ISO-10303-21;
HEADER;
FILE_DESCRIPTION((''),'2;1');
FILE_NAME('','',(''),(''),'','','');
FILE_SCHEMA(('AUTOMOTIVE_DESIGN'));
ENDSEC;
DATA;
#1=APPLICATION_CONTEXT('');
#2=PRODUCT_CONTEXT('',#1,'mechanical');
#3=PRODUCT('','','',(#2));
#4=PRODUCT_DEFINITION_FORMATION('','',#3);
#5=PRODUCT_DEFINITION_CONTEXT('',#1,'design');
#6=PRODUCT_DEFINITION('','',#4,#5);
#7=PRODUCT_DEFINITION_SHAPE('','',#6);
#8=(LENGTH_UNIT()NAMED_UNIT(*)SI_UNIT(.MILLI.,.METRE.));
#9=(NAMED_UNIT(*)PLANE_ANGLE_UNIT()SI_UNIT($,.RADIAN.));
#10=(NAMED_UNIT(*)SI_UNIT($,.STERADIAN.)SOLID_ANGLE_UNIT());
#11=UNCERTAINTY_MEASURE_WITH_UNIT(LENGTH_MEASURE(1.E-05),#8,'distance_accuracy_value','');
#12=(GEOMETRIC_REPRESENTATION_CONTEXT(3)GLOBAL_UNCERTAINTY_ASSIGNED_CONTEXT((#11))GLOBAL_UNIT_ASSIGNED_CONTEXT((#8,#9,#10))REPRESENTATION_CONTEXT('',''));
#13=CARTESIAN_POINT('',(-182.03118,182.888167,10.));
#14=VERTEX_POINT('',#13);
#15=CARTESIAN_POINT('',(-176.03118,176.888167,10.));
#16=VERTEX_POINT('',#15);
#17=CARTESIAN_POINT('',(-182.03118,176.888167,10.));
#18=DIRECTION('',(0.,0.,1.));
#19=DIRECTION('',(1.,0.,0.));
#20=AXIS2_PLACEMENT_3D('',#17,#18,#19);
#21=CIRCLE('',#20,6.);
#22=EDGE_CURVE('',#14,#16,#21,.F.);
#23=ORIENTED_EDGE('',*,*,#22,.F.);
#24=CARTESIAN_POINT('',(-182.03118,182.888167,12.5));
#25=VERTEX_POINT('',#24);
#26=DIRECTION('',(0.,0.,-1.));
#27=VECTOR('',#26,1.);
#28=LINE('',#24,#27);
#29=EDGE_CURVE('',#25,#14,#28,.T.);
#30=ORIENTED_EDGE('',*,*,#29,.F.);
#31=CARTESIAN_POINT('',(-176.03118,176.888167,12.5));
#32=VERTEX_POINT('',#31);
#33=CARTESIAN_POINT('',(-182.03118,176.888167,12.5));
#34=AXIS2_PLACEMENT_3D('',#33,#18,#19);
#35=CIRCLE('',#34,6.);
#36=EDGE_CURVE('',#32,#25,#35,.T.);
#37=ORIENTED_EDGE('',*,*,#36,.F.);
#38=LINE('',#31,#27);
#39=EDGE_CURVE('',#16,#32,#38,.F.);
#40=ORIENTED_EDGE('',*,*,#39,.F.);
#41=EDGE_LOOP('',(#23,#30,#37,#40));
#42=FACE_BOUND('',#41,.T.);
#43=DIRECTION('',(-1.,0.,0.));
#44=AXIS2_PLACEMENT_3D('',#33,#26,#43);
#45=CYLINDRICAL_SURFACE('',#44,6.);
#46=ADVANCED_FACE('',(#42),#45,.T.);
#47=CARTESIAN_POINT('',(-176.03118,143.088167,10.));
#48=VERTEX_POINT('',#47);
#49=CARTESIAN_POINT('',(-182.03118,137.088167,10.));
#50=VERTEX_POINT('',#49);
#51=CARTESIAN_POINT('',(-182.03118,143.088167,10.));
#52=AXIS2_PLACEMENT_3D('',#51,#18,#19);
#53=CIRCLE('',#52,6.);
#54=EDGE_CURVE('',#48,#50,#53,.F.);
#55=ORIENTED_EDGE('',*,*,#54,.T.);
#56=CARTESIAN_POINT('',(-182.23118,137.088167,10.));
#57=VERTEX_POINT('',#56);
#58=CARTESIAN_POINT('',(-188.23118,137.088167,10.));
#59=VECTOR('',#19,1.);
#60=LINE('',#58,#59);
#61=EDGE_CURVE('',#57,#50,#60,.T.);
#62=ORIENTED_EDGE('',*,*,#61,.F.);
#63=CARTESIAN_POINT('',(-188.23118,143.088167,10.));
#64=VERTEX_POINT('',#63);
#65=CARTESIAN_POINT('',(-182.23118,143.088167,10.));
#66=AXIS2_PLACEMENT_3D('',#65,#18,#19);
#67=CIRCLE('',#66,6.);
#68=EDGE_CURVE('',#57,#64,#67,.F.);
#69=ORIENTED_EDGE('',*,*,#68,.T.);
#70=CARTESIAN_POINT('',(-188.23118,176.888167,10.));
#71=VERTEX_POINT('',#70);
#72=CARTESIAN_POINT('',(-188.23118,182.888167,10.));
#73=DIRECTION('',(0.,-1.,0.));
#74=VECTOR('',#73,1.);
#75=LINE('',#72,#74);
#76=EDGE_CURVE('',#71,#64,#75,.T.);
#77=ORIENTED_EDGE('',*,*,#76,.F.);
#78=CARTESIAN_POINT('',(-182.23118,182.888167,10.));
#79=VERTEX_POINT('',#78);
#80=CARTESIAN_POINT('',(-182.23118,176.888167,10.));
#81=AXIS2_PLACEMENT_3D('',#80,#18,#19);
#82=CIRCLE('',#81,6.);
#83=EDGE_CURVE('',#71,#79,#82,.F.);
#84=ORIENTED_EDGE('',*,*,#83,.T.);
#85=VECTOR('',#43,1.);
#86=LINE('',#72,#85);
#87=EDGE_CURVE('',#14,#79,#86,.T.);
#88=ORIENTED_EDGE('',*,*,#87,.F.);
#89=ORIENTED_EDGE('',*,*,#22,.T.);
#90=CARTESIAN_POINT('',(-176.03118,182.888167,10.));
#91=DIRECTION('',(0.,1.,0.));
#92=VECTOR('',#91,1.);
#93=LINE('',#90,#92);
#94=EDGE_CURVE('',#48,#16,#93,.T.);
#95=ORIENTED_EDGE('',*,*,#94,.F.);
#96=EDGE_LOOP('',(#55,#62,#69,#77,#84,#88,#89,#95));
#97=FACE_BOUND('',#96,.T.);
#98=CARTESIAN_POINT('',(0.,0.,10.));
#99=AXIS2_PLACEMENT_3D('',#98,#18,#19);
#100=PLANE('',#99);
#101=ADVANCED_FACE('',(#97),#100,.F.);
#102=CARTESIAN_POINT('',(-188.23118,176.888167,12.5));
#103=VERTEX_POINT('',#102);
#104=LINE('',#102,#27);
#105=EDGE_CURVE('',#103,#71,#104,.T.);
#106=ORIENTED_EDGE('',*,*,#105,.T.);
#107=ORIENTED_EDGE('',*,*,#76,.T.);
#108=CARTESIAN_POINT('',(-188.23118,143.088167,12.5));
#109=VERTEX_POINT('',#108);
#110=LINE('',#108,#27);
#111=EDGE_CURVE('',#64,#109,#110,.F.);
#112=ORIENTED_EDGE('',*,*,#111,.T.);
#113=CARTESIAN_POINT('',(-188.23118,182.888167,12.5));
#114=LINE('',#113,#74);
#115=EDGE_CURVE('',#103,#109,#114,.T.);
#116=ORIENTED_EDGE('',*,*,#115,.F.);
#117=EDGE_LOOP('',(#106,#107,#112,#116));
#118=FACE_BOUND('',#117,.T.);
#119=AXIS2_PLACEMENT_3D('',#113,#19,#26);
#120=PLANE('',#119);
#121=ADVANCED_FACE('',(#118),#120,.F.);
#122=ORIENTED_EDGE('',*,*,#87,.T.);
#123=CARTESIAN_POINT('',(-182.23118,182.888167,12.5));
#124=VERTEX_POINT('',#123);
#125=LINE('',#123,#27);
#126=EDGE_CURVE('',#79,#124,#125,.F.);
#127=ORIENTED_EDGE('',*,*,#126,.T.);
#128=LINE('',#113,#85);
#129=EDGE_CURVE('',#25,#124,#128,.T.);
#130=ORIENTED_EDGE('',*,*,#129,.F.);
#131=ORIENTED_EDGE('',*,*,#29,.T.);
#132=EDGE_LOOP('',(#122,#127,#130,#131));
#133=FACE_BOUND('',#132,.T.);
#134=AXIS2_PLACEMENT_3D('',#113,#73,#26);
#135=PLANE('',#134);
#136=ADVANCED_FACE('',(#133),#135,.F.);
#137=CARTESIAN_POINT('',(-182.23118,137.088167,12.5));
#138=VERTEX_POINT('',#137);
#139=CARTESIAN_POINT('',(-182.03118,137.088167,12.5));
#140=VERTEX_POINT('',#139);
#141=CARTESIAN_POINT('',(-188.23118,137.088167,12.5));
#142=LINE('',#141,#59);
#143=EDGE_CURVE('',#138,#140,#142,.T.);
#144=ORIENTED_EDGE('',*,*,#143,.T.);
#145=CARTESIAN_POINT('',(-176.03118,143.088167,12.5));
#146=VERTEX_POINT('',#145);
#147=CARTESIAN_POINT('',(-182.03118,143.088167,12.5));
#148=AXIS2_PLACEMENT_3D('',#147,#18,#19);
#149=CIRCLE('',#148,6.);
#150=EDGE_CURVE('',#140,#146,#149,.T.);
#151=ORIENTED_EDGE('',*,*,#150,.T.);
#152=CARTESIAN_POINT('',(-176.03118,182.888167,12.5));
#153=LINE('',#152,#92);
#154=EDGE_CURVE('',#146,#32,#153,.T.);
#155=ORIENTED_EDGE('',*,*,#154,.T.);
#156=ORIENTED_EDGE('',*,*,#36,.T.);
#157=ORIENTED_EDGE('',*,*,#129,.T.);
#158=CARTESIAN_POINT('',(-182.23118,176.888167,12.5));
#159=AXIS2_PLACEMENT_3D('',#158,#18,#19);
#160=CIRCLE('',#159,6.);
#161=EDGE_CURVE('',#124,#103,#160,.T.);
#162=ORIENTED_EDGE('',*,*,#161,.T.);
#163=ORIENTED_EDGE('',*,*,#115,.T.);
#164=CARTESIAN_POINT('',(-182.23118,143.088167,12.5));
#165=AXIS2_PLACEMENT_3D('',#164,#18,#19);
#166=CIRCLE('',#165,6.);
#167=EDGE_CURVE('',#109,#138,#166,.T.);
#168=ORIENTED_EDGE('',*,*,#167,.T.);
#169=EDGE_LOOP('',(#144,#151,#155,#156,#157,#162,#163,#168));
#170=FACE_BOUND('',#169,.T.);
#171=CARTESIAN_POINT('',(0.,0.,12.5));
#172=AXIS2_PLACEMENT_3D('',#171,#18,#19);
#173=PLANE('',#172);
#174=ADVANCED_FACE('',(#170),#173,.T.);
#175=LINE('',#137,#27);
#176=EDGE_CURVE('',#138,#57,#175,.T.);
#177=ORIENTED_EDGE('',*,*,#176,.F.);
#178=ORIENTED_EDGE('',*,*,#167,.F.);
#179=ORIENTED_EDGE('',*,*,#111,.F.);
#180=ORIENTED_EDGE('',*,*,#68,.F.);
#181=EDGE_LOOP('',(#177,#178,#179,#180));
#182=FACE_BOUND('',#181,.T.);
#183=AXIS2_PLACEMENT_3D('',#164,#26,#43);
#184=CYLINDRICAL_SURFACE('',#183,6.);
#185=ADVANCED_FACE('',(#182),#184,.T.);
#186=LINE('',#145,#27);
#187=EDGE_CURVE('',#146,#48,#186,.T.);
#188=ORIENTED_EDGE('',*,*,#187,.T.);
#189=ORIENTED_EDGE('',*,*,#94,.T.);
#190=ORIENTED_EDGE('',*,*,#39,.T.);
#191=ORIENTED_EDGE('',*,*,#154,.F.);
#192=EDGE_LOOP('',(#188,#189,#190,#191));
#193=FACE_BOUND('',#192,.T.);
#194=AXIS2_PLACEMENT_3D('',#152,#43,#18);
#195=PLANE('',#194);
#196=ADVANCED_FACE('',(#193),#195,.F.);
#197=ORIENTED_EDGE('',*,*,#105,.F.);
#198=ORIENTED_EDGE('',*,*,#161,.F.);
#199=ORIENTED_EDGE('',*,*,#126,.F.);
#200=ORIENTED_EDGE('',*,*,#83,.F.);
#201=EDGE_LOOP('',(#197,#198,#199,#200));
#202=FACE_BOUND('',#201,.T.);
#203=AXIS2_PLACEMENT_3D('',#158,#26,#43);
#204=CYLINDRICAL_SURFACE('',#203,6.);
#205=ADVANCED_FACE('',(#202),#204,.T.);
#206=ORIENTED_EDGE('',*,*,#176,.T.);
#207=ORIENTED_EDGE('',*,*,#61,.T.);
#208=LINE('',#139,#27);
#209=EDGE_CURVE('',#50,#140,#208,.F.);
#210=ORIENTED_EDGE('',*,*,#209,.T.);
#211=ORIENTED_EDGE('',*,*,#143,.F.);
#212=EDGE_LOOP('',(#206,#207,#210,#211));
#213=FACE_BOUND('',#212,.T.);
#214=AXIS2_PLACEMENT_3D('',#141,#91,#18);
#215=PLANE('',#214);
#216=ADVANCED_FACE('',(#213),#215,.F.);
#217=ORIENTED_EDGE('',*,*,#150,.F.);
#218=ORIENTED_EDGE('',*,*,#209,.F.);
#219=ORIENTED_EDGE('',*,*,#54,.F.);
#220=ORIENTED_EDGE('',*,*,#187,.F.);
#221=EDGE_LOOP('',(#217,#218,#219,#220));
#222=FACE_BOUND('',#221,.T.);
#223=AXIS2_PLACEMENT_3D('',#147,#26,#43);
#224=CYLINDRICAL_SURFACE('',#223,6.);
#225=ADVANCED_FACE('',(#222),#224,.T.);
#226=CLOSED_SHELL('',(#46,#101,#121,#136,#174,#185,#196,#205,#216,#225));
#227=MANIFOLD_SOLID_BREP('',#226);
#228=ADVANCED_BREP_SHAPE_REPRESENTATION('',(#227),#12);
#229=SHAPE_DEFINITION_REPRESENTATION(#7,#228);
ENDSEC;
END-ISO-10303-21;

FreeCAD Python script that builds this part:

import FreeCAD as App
import Part
import Sketcher


def edges_at(feature, points):
    """Names of the edges that pass closest to the given points."""
    edges = feature.Shape.Edges
    near = lambda p: min(range(len(edges)), key=lambda i: edges[i].distToShape(Part.Vertex(*p))[0])
    return sorted({f"Edge{near(p) + 1}" for p in points})

doc = App.newDocument("Part")
body = doc.addObject("PartDesign::Body", "Body")

sketch1 = body.newObject("Sketcher::SketchObject", "Sketch")
sketch1.AttachmentSupport = (doc.getObject("XY_Plane"), [""])
sketch1.MapMode = "FlatFace"
sketch1.AttachmentOffset = App.Placement(App.Vector(0, 0, 10), App.Rotation())
sketch1.addGeometry([
    Part.LineSegment(App.Vector(-188, 183, 0), App.Vector(-188, 137, 0)),
    Part.LineSegment(App.Vector(-188, 137, 0), App.Vector(-176, 137, 0)),
    Part.LineSegment(App.Vector(-176, 137, 0), App.Vector(-176, 183, 0)),
    Part.LineSegment(App.Vector(-176, 183, 0), App.Vector(-188, 183, 0)),
], False)
sketch1.addConstraint([
    Sketcher.Constraint("Coincident", 0, 2, 1, 1),
    Sketcher.Constraint("Coincident", 1, 2, 2, 1),
    Sketcher.Constraint("Coincident", 2, 2, 3, 1),
    Sketcher.Constraint("Coincident", 3, 2, 0, 1),
    Sketcher.Constraint("Vertical", 0),
    Sketcher.Constraint("Horizontal", 1),
    Sketcher.Constraint("Vertical", 2),
    Sketcher.Constraint("Horizontal", 3),
    Sketcher.Constraint("DistanceX", 1, 1, 1, 2, 12.2),
    Sketcher.Constraint("DistanceY", 0, 2, 0, 1, 45.8),
    Sketcher.Constraint("DistanceX", 0, 2, -1, 1, 188.23118),
    Sketcher.Constraint("DistanceY", -1, 1, 0, 2, 137.088167),
])
pad1 = body.newObject("PartDesign::Pad", "Pad")
pad1.Profile = sketch1
pad1.Length = 2.5
doc.recompute()

fillet = body.newObject("PartDesign::Fillet", "Fillet")
fillet.Base = (pad1, edges_at(pad1, [
    (-188.231, 182.888, 11.25),
    (-176.031, 182.888, 11.25),
    (-176.031, 137.088, 11.25),
    (-188.231, 137.088, 11.25),
]))
fillet.Radius = 6

doc.recompute()
